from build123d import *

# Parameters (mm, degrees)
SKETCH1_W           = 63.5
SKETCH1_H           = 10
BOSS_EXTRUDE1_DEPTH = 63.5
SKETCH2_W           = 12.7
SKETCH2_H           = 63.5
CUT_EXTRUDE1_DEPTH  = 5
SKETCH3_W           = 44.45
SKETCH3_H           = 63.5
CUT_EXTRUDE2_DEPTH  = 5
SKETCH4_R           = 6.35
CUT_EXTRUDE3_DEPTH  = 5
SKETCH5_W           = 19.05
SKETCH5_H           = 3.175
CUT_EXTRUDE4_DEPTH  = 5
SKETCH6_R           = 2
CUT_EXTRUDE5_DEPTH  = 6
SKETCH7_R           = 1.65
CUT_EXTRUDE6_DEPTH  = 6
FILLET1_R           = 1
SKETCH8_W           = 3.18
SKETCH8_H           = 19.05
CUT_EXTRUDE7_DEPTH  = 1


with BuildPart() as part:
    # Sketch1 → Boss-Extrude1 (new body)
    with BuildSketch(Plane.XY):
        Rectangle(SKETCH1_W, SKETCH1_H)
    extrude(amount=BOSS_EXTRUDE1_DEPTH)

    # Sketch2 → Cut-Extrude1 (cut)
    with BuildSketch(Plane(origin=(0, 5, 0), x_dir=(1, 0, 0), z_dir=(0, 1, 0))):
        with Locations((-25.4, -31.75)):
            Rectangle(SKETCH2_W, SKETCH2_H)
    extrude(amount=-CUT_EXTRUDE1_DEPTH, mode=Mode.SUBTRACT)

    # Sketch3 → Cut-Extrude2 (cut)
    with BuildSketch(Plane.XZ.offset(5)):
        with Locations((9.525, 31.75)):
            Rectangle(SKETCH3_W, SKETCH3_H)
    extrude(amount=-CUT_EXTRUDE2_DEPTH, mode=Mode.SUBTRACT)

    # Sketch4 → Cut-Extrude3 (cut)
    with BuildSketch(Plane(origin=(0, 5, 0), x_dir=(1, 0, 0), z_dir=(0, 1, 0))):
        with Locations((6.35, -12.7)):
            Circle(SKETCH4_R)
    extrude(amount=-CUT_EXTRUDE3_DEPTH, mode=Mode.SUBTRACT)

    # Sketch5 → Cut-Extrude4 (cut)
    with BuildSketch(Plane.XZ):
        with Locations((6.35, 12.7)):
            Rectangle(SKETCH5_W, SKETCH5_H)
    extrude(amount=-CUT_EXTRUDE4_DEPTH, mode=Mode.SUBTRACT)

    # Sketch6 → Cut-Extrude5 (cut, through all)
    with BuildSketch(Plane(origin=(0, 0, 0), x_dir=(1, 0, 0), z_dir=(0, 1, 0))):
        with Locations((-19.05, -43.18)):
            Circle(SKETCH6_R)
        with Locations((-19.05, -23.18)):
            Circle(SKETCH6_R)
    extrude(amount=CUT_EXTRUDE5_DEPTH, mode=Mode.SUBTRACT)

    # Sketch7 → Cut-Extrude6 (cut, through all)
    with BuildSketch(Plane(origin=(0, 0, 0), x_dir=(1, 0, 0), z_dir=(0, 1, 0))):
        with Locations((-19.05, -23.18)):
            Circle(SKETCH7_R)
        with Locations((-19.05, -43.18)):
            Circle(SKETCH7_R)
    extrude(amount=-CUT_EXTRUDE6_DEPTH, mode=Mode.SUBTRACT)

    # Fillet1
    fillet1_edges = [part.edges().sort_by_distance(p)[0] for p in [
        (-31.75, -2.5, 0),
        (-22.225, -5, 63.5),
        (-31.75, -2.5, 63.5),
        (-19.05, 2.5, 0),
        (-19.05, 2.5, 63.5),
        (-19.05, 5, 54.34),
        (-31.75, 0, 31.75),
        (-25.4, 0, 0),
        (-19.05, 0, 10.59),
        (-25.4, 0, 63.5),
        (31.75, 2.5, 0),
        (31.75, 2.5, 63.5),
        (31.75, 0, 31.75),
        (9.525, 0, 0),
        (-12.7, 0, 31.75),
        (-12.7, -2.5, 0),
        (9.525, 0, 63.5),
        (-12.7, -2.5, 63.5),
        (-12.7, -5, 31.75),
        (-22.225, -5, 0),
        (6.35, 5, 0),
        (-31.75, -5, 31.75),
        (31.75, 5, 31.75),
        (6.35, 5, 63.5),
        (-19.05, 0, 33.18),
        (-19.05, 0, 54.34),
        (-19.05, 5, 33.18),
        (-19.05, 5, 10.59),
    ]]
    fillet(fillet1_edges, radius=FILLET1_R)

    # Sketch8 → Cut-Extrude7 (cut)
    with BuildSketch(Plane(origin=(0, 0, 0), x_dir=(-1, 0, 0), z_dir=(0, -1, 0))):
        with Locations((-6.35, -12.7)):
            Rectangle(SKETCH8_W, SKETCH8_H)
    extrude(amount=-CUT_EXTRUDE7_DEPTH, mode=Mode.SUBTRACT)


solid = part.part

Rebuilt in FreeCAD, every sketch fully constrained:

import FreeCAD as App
import Part
import Sketcher
from FreeCAD import Vector


def edges_at(feature, points):
    """Names of the edges that pass closest to the given points."""
    edges = feature.Shape.Edges
    near = lambda p: min(range(len(edges)), key=lambda i: edges[i].distToShape(Part.Vertex(*p))[0])
    return sorted({f"Edge{near(p) + 1}" for p in points})


def add_polygon(sketch, points):
    """Adds a closed chain of lines whose ends are joined by coincident constraints."""
    first, n = sketch.GeometryCount, len(points)
    for a, b in zip(points, points[1:] + points[:1]):
        sketch.addGeometry(Part.LineSegment(App.Vector(*a, 0), App.Vector(*b, 0)), False)
    for i in range(n):
        sketch.addConstraint(Sketcher.Constraint("Coincident", first + i, 2, first + (i + 1) % n, 1))

doc = App.newDocument("Part")
body = doc.addObject("PartDesign::Body", "Body")

# Sketch on XY plane
sketch1 = doc.addObject("Sketcher::SketchObject", "Sketch")
body.addObject(sketch1)
sketch1.AttachmentSupport = (doc.XY_Plane, [""])
sketch1.MapMode = "FlatFace"
add_polygon(sketch1, [(-32, 5), (-32, -5), (32, -5), (32, 5)])  # lines 0-3
sketch1.addConstraint([
    Sketcher.Constraint("Vertical", 0),
    Sketcher.Constraint("Horizontal", 1),
    Sketcher.Constraint("Vertical", 2),
    Sketcher.Constraint("Horizontal", 3),
    Sketcher.Constraint("Symmetric", 0, 2, 2, 2, -1, 1),
    Sketcher.Constraint("DistanceY", 0, 2, 0, 1, 10.0),
    Sketcher.Constraint("DistanceX", 1, 1, 1, 2, 63.5),
])
pad1 = doc.addObject("PartDesign::Pad", "Pad")
body.addObject(pad1)
pad1.Profile = sketch1
pad1.Length = 63.5

# Sketch on XZ plane
sketch2 = doc.addObject("Sketcher::SketchObject", "Sketch001")
body.addObject(sketch2)
sketch2.AttachmentSupport = (doc.XZ_Plane, [""])
sketch2.MapMode = "FlatFace"
sketch2.AttachmentOffset = App.Placement(Vector(0, 0, -5), App.Rotation())
add_polygon(sketch2, [(-32, 0), (-32, 64), (-19, 64), (-19, 0)])  # lines 0-3
sketch2.addConstraint([
    Sketcher.Constraint("Vertical", 0),
    Sketcher.Constraint("Horizontal", 1),
    Sketcher.Constraint("Vertical", 2),
    Sketcher.Constraint("Horizontal", 3),
    Sketcher.Constraint("PointOnObject", 2, 2, -1),
    Sketcher.Constraint("DistanceX", 1, 1, 1, 2, 12.7),
    Sketcher.Constraint("DistanceY", 0, 1, 0, 2, 63.5),
    Sketcher.Constraint("DistanceX", 0, 2, -1, 1, 31.75),
])
pocket1 = doc.addObject("PartDesign::Pocket", "Pocket")
body.addObject(pocket1)
pocket1.Profile = sketch2
pocket1.Length = 5
pocket1.Reversed = True

# Sketch on XZ plane
sketch3 = doc.addObject("Sketcher::SketchObject", "Sketch002")
body.addObject(sketch3)
sketch3.AttachmentSupport = (doc.XZ_Plane, [""])
sketch3.MapMode = "FlatFace"
sketch3.AttachmentOffset = App.Placement(Vector(0, 0, 5), App.Rotation())
add_polygon(sketch3, [(-13, 64), (-13, 0), (32, 0), (32, 64)])  # lines 0-3
sketch3.addConstraint([
    Sketcher.Constraint("Vertical", 0),
    Sketcher.Constraint("Horizontal", 1),
    Sketcher.Constraint("Vertical", 2),
    Sketcher.Constraint("Horizontal", 3),
    Sketcher.Constraint("PointOnObject", 0, 2, -1),
    Sketcher.Constraint("DistanceY", 0, 2, 0, 1, 63.5),
    Sketcher.Constraint("DistanceX", 1, 1, 1, 2, 44.45),
    Sketcher.Constraint("DistanceX", 0, 2, -1, 1, 12.7),
])
pocket2 = doc.addObject("PartDesign::Pocket", "Pocket001")
body.addObject(pocket2)
pocket2.Profile = sketch3
pocket2.Length = 5

# Sketch on XZ plane
sketch4 = doc.addObject("Sketcher::SketchObject", "Sketch003")
body.addObject(sketch4)
sketch4.AttachmentSupport = (doc.XZ_Plane, [""])
sketch4.MapMode = "FlatFace"
sketch4.AttachmentOffset = App.Placement(Vector(0, 0, -5), App.Rotation())
sketch4.addGeometry(Part.Circle(Vector(6, 13, 0), Vector(0, 0, 1), 6), False)
sketch4.addConstraint([
    Sketcher.Constraint("Diameter", 0, 12.7),
    Sketcher.Constraint("DistanceY", -1, 1, 0, 3, 12.7),
    Sketcher.Constraint("DistanceX", -1, 1, 0, 3, 6.35),
])
pocket3 = doc.addObject("PartDesign::Pocket", "Pocket002")
body.addObject(pocket3)
pocket3.Profile = sketch4
pocket3.Length = 5
pocket3.Reversed = True

# Sketch on XZ plane
sketch5 = doc.addObject("Sketcher::SketchObject", "Sketch004")
body.addObject(sketch5)
sketch5.AttachmentSupport = (doc.XZ_Plane, [""])
sketch5.MapMode = "FlatFace"
add_polygon(sketch5, [(-3.2, 14.3), (-3.2, 11.1), (15.9, 11.1), (15.9, 14.3)])  # lines 0-3
sketch5.addConstraint([
    Sketcher.Constraint("Vertical", 0),
    Sketcher.Constraint("Horizontal", 1),
    Sketcher.Constraint("Vertical", 2),
    Sketcher.Constraint("Horizontal", 3),
    Sketcher.Constraint("DistanceX", 1, 1, 1, 2, 19.05),
    Sketcher.Constraint("DistanceY", 0, 2, 0, 1, 3.175),
    Sketcher.Constraint("DistanceX", 0, 2, -1, 1, 3.175),
    Sketcher.Constraint("DistanceY", -1, 1, 0, 2, 11.1125),
])
pocket4 = doc.addObject("PartDesign::Pocket", "Pocket003")
body.addObject(pocket4)
pocket4.Profile = sketch5
pocket4.Length = 5

# Sketch on XZ plane
sketch6 = doc.addObject("Sketcher::SketchObject", "Sketch005")
body.addObject(sketch6)
sketch6.AttachmentSupport = (doc.XZ_Plane, [""])
sketch6.MapMode = "FlatFace"
sketch6.addGeometry([
    Part.Circle(Vector(-19.1, 43.2, 0), Vector(0, 0, 1), 2),
    Part.Circle(Vector(-19.1, 23.2, 0), Vector(0, 0, 1), 2),
], False)
sketch6.addConstraint([
    Sketcher.Constraint("Equal", 0, 1),
    Sketcher.Constraint("Vertical", 0, 3, 1, 3),
    Sketcher.Constraint("Diameter", 0, 4.0),
    Sketcher.Constraint("DistanceY", 1, 3, 0, 3, 20.0),
    Sketcher.Constraint("DistanceX", 0, 3, -1, 1, 19.05),
    Sketcher.Constraint("DistanceY", -1, 1, 0, 3, 43.18),
])
pocket5 = doc.addObject("PartDesign::Pocket", "Pocket004")
body.addObject(pocket5)
pocket5.Profile = sketch6
pocket5.Type = "ThroughAll"

# Sketch on XZ plane
sketch7 = doc.addObject("Sketcher::SketchObject", "Sketch006")
body.addObject(sketch7)
sketch7.AttachmentSupport = (doc.XZ_Plane, [""])
sketch7.MapMode = "FlatFace"
sketch7.addGeometry([
    Part.Circle(Vector(-19.1, 23.2, 0), Vector(0, 0, 1), 1.6),
    Part.Circle(Vector(-19.1, 43.2, 0), Vector(0, 0, 1), 1.6),
], False)
sketch7.addConstraint([
    Sketcher.Constraint("Equal", 0, 1),
    Sketcher.Constraint("Vertical", 0, 3, 1, 3),
    Sketcher.Constraint("Diameter", 0, 3.3),
    Sketcher.Constraint("DistanceY", 0, 3, 1, 3, 20.0),
    Sketcher.Constraint("DistanceX", 0, 3, -1, 1, 19.05),
    Sketcher.Constraint("DistanceY", -1, 1, 0, 3, 23.18),
])
pocket6 = doc.addObject("PartDesign::Pocket", "Pocket005")
body.addObject(pocket6)
pocket6.Profile = sketch7
pocket6.Type = "ThroughAll"
pocket6.Reversed = True
doc.recompute()

fillet = doc.addObject("PartDesign::Fillet", "Fillet")
body.addObject(fillet)
fillet.Base = (pocket6, edges_at(pocket6, [
    (-31.75, -2.5, 0),
    (-22.225, -5, 63.5),
    (-31.75, -2.5, 63.5),
    (-19.05, 2.5, 0),
    (-19.05, 2.5, 63.5),
    (-19.05, 5, 54.34),
    (-31.75, 0, 31.75),
    (-25.4, 0, 0),
    (-19.05, 0, 10.59),
    (-25.4, 0, 63.5),
    (31.75, 2.5, 0),
    (31.75, 2.5, 63.5),
    (31.75, 0, 31.75),
    (9.525, 0, 0),
    (-12.7, 0, 31.75),
    (-12.7, -2.5, 0),
    (9.525, 0, 63.5),
    (-12.7, -2.5, 63.5),
    (-12.7, -5, 31.75),
    (-22.225, -5, 0),
    (6.35, 5, 0),
    (-31.75, -5, 31.75),
    (31.75, 5, 31.75),
    (6.35, 5, 63.5),
    (-19.05, 0, 33.18),
    (-19.05, 0, 54.34),
    (-19.05, 5, 33.18),
    (-19.05, 5, 10.59),
]))
fillet.Radius = 1

# Sketch on XZ plane
sketch8 = doc.addObject("Sketcher::SketchObject", "Sketch007")
body.addObject(sketch8)
sketch8.AttachmentSupport = (doc.XZ_Plane, [""])
sketch8.MapMode = "FlatFace"
add_polygon(sketch8, [(7.9, 3.2), (7.9, 22.2), (4.8, 22.2), (4.8, 3.2)])  # lines 0-3
sketch8.addConstraint([
    Sketcher.Constraint("Vertical", 0),
    Sketcher.Constraint("Horizontal", 1),
    Sketcher.Constraint("Vertical", 2),
    Sketcher.Constraint("Horizontal", 3),
    Sketcher.Constraint("DistanceX", 1, 2, 1, 1, 3.18),
    Sketcher.Constraint("DistanceY", 0, 1, 0, 2, 19.05),
    Sketcher.Constraint("DistanceX", -1, 1, 0, 2, 7.94),
    Sketcher.Constraint("DistanceY", -1, 1, 0, 2, 22.225),
])
pocket7 = doc.addObject("PartDesign::Pocket", "Pocket006")
body.addObject(pocket7)
pocket7.Profile = sketch8
pocket7.Length = 1

doc.recompute()
